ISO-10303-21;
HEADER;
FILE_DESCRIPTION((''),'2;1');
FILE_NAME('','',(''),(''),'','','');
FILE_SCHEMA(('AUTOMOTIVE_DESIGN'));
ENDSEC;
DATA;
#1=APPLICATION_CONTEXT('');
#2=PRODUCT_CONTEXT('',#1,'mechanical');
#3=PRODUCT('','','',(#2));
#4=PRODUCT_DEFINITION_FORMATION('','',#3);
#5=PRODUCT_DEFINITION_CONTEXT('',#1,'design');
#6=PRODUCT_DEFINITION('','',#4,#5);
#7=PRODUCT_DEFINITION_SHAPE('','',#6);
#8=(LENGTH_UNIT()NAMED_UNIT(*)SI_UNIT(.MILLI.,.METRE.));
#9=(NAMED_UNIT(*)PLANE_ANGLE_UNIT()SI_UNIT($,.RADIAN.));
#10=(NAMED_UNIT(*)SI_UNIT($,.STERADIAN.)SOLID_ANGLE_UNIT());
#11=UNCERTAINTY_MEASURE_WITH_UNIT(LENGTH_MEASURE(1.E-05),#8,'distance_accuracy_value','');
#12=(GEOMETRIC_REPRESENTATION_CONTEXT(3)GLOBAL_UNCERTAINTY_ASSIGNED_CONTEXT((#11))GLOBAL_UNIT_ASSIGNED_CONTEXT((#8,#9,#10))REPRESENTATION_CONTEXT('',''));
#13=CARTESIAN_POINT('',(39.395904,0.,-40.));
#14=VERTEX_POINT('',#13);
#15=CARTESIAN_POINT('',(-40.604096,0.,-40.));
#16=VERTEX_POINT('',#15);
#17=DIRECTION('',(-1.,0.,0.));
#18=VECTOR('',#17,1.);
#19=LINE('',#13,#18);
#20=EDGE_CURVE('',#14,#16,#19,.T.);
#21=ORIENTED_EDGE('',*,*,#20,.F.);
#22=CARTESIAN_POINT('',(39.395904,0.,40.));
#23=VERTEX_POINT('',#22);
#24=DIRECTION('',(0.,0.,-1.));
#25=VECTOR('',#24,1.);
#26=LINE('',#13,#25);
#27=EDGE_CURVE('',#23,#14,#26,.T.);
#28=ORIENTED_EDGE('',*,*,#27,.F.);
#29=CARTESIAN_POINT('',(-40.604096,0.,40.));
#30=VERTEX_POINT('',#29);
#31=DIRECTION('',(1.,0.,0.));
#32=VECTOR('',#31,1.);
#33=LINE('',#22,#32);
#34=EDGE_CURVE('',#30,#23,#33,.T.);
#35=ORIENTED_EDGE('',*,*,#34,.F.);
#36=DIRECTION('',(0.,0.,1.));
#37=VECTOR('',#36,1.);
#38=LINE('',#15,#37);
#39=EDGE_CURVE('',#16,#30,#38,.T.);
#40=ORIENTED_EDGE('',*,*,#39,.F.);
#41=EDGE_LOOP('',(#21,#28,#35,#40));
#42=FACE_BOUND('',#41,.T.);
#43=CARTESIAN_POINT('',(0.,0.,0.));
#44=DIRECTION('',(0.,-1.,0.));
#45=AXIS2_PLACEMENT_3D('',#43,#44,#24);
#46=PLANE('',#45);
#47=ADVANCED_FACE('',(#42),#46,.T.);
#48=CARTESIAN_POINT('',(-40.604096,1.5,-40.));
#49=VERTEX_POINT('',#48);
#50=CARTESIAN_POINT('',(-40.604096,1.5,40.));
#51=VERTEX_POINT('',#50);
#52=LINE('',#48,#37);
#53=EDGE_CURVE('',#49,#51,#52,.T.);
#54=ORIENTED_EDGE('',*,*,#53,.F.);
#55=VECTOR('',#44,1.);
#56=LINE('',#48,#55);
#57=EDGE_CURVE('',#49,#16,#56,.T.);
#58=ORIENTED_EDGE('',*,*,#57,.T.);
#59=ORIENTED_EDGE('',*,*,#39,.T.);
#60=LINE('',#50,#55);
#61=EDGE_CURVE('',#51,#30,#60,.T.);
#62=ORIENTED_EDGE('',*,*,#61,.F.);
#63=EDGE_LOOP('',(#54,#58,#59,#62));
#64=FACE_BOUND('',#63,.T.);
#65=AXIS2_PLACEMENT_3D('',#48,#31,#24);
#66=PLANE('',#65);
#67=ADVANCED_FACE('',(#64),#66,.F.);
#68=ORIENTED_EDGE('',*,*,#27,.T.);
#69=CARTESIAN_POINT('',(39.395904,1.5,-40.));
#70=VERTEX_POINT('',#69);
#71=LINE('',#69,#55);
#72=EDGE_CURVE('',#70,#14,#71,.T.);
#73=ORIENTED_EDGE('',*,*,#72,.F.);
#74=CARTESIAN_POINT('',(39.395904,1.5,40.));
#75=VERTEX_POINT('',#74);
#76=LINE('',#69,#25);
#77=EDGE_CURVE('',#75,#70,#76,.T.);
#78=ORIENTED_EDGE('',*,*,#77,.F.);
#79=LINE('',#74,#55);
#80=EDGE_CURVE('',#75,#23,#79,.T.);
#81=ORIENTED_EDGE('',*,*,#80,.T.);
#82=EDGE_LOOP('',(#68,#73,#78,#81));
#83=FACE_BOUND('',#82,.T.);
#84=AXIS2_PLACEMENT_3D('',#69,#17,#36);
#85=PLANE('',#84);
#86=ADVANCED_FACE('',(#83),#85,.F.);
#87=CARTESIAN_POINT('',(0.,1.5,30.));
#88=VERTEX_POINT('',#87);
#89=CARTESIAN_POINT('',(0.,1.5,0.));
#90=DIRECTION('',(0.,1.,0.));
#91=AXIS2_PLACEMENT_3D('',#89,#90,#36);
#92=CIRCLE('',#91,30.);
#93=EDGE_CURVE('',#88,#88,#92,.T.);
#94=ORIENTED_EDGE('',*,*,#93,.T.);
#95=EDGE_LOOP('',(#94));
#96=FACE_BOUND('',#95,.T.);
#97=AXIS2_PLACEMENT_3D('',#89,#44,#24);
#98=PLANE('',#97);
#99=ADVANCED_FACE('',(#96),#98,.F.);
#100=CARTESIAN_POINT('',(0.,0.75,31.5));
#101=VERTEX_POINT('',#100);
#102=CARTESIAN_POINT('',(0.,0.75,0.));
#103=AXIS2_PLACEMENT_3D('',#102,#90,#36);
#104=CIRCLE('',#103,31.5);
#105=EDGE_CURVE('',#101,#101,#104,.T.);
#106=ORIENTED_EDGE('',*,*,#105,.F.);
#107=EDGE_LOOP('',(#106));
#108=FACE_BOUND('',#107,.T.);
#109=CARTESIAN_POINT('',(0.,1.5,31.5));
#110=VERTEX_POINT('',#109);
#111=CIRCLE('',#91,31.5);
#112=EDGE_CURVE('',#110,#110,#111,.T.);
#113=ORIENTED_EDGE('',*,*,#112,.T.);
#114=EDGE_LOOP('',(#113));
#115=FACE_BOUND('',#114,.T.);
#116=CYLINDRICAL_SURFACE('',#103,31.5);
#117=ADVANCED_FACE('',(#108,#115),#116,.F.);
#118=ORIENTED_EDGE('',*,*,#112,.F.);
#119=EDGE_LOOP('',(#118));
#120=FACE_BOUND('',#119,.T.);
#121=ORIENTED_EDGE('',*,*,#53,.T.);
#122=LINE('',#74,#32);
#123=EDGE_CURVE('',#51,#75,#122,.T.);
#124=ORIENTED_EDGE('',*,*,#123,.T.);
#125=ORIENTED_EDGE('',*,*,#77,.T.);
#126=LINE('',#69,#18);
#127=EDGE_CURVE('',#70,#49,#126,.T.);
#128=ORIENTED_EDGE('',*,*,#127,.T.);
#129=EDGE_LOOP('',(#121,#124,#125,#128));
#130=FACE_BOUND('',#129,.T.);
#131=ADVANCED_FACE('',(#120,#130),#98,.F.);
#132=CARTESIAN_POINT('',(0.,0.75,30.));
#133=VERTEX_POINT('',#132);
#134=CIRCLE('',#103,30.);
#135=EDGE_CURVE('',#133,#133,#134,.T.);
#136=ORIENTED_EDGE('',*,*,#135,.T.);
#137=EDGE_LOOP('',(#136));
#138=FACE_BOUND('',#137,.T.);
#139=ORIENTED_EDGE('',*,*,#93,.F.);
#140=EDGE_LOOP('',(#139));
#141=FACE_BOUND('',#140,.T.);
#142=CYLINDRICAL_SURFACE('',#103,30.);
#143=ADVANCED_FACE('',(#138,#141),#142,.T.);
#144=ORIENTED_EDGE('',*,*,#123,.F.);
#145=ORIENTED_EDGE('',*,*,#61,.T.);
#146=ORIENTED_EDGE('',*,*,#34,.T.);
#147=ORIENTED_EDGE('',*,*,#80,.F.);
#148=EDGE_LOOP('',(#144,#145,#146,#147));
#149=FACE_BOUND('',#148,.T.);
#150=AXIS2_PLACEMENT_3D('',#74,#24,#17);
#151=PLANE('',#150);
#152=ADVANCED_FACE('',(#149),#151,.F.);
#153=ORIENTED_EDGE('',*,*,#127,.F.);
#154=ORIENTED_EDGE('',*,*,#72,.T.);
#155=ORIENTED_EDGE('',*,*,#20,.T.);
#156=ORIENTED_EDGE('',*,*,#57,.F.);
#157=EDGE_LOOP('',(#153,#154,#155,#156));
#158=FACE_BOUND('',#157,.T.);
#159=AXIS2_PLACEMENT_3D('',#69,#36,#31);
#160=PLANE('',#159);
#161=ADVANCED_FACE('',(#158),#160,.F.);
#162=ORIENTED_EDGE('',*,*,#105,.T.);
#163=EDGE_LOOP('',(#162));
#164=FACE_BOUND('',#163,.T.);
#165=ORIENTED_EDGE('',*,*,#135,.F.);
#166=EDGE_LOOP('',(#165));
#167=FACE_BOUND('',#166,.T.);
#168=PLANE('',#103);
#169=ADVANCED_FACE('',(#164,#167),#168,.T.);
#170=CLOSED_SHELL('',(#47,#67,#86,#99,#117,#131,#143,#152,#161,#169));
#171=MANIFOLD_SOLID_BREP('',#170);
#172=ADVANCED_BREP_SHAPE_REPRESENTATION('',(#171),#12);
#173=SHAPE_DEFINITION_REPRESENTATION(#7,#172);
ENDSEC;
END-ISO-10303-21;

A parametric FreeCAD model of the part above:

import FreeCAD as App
import Part
import Sketcher
from FreeCAD import Vector
Q = App.Units.Quantity

doc = App.newDocument("Part")
body = doc.addObject("PartDesign::Body", "Body")

sketch1 = doc.addObject("Sketcher::SketchObject", "Sketch")
body.addObject(sketch1)
sketch1.AttachmentSupport = (doc.XZ_Plane, [""])
sketch1.MapMode = "FlatFace"
sketch1.addGeometry(Part.LineSegment(Vector(-41, -40, 0), Vector(-41, 40, 0)), False)
sketch1.addGeometry(Part.LineSegment(Vector(-41, 40, 0), Vector(39, 40, 0)), False)
sketch1.addGeometry(Part.LineSegment(Vector(39, 40, 0), Vector(39, -40, 0)), False)
sketch1.addGeometry(Part.LineSegment(Vector(39, -40, 0), Vector(-41, -40, 0)), False)
sketch1.addConstraint(Sketcher.Constraint("Coincident", 0, 2, 1, 1))
sketch1.addConstraint(Sketcher.Constraint("Coincident", 1, 2, 2, 1))
sketch1.addConstraint(Sketcher.Constraint("Coincident", 2, 2, 3, 1))
sketch1.addConstraint(Sketcher.Constraint("Coincident", 3, 2, 0, 1))
sketch1.addConstraint(Sketcher.Constraint("Vertical", 0))
sketch1.addConstraint(Sketcher.Constraint("Horizontal", 1))
sketch1.addConstraint(Sketcher.Constraint("Vertical", 2))
sketch1.addConstraint(Sketcher.Constraint("Horizontal", 3))
sketch1.addConstraint(Sketcher.Constraint("Equal", 3, 0))
sketch1.addConstraint(Sketcher.Constraint("DistanceX", 1, 1, 1, 2, Q("80 mm")))
sketch1.addConstraint(Sketcher.Constraint("DistanceY", -1, 1, 0, 2, Q("40 mm")))
sketch1.addConstraint(Sketcher.Constraint("DistanceX", 0, 2, -1, 1, Q("40.604096 mm")))
pad1 = doc.addObject("PartDesign::Pad", "Pad")
body.addObject(pad1)
pad1.Profile = sketch1
pad1.Length = 1.5
pad1.Reversed = True

sketch2 = doc.addObject("Sketcher::SketchObject", "Sketch001")
body.addObject(sketch2)
sketch2.AttachmentSupport = (doc.XZ_Plane, [""])
sketch2.MapMode = "FlatFace"
sketch2.AttachmentOffset = App.Placement(Vector(0, 0, -1.5), App.Rotation())
sketch2.addGeometry(Part.Circle(Vector(0, 0, 0), Vector(0, 0, 1), 32), False)
sketch2.addGeometry(Part.Circle(Vector(0, 0, 0), Vector(0, 0, 1), 30), False)
sketch2.addConstraint(Sketcher.Constraint("Coincident", 0, 3, -1, 1))
sketch2.addConstraint(Sketcher.Constraint("Coincident", 1, 3, -1, 1))
sketch2.addConstraint(Sketcher.Constraint("Diameter", 0, Q("63 mm")))
sketch2.addConstraint(Sketcher.Constraint("Diameter", 1, Q("60 mm")))
pocket1 = doc.addObject("PartDesign::Pocket", "Pocket")
body.addObject(pocket1)
pocket1.Profile = sketch2
pocket1.Length = 0.75
pocket1.Reversed = True

doc.recompute()
